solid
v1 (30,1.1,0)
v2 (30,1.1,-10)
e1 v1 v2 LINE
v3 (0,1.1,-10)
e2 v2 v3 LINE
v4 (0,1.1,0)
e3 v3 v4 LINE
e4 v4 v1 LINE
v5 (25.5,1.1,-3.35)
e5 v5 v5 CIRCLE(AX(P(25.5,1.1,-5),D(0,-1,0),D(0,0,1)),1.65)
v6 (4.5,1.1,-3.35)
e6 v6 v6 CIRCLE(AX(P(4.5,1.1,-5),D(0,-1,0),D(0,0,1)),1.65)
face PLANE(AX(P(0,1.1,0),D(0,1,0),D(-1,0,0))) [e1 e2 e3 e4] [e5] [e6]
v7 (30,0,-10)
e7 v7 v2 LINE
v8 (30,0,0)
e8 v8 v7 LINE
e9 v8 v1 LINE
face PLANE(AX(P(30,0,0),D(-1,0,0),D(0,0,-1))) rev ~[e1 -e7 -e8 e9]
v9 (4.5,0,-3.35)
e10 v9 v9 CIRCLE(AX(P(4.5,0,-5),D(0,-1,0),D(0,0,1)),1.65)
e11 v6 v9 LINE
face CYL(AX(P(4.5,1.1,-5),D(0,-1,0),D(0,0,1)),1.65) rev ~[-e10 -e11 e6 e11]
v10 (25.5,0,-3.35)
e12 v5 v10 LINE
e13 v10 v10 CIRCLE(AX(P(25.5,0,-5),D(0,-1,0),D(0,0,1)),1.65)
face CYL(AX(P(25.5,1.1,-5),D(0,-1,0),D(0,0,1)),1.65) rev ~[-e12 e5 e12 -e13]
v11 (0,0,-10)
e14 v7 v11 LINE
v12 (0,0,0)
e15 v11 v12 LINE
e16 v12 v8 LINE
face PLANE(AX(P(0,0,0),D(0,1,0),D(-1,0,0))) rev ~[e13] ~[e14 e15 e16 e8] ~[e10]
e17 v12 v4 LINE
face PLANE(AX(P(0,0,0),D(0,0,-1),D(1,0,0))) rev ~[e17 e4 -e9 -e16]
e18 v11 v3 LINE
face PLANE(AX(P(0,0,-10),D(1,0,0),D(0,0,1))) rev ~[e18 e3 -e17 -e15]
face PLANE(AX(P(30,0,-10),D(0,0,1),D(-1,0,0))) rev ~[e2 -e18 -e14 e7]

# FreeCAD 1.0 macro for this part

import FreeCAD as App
import Part
import Sketcher

V = App.Vector
Q = App.Units.Quantity

doc = App.newDocument("Part")
body = doc.addObject("PartDesign::Body", "Body")

# Sketch on XZ plane
sketch1 = doc.addObject("Sketcher::SketchObject", "Sketch")
body.addObject(sketch1)
sketch1.AttachmentSupport = (doc.XZ_Plane, [""])
sketch1.MapMode = "FlatFace"
sketch1.addGeometry([
    Part.LineSegment(V(0, -10, 0), V(0, 0, 0)),
    Part.LineSegment(V(0, 0, 0), V(30, 0, 0)),
    Part.LineSegment(V(30, 0, 0), V(30, -10, 0)),
    Part.LineSegment(V(30, -10, 0), V(0, -10, 0)),
], False)
sketch1.addConstraint([
    Sketcher.Constraint("Coincident", 0, 2, 1, 1),
    Sketcher.Constraint("Coincident", 1, 2, 2, 1),
    Sketcher.Constraint("Coincident", 2, 2, 3, 1),
    Sketcher.Constraint("Coincident", 3, 2, 0, 1),
    Sketcher.Constraint("Vertical", 0),
    Sketcher.Constraint("Horizontal", 1),
    Sketcher.Constraint("Vertical", 2),
    Sketcher.Constraint("Horizontal", 3),
    Sketcher.Constraint("Coincident", 0, 2, -1, 1),
    Sketcher.Constraint("DistanceX", 1, 1, 1, 2, Q("30 mm")),
    Sketcher.Constraint("DistanceY", 0, 1, 0, 2, Q("10 mm")),
])
pad1 = doc.addObject("PartDesign::Pad", "Pad")
body.addObject(pad1)
pad1.Profile = sketch1
pad1.Length = 1.1
pad1.Reversed = True

# Sketch on XZ plane
sketch2 = doc.addObject("Sketcher::SketchObject", "Sketch001")
body.addObject(sketch2)
sketch2.AttachmentSupport = (doc.XZ_Plane, [""])
sketch2.MapMode = "FlatFace"
sketch2.AttachmentOffset = App.Placement(V(0, 0, -1.1), App.Rotation())
sketch2.addGeometry([
    Part.Circle(V(4.5, -5, 0), V(0, 0, 1), 1.65),
    Part.Circle(V(25.5, -5, 0), V(0, 0, 1), 1.65),
], False)
sketch2.addConstraint([
    Sketcher.Constraint("Equal", 0, 1),
    Sketcher.Constraint("Horizontal", 0, 3, 1, 3),
    Sketcher.Constraint("Diameter", 0, Q("3.3 mm")),
    Sketcher.Constraint("DistanceY", 0, 3, -1, 1, Q("5 mm")),
    Sketcher.Constraint("DistanceX", 0, 3, 1, 3, Q("21 mm")),
    Sketcher.Constraint("DistanceX", -1, 1, 0, 3, Q("4.5 mm")),
])
doc.recompute()
hole = doc.addObject("PartDesign::Hole", "Hole")
body.addObject(hole)
hole.Profile = sketch2
hole.ThreadType = "None"
hole.Diameter = 3.3
hole.DepthType = "Dimension"
hole.Depth = 2
hole.DrillPoint = "Angled"
hole.DrillPointAngle = 118
hole.Reversed = True

doc.recompute()
